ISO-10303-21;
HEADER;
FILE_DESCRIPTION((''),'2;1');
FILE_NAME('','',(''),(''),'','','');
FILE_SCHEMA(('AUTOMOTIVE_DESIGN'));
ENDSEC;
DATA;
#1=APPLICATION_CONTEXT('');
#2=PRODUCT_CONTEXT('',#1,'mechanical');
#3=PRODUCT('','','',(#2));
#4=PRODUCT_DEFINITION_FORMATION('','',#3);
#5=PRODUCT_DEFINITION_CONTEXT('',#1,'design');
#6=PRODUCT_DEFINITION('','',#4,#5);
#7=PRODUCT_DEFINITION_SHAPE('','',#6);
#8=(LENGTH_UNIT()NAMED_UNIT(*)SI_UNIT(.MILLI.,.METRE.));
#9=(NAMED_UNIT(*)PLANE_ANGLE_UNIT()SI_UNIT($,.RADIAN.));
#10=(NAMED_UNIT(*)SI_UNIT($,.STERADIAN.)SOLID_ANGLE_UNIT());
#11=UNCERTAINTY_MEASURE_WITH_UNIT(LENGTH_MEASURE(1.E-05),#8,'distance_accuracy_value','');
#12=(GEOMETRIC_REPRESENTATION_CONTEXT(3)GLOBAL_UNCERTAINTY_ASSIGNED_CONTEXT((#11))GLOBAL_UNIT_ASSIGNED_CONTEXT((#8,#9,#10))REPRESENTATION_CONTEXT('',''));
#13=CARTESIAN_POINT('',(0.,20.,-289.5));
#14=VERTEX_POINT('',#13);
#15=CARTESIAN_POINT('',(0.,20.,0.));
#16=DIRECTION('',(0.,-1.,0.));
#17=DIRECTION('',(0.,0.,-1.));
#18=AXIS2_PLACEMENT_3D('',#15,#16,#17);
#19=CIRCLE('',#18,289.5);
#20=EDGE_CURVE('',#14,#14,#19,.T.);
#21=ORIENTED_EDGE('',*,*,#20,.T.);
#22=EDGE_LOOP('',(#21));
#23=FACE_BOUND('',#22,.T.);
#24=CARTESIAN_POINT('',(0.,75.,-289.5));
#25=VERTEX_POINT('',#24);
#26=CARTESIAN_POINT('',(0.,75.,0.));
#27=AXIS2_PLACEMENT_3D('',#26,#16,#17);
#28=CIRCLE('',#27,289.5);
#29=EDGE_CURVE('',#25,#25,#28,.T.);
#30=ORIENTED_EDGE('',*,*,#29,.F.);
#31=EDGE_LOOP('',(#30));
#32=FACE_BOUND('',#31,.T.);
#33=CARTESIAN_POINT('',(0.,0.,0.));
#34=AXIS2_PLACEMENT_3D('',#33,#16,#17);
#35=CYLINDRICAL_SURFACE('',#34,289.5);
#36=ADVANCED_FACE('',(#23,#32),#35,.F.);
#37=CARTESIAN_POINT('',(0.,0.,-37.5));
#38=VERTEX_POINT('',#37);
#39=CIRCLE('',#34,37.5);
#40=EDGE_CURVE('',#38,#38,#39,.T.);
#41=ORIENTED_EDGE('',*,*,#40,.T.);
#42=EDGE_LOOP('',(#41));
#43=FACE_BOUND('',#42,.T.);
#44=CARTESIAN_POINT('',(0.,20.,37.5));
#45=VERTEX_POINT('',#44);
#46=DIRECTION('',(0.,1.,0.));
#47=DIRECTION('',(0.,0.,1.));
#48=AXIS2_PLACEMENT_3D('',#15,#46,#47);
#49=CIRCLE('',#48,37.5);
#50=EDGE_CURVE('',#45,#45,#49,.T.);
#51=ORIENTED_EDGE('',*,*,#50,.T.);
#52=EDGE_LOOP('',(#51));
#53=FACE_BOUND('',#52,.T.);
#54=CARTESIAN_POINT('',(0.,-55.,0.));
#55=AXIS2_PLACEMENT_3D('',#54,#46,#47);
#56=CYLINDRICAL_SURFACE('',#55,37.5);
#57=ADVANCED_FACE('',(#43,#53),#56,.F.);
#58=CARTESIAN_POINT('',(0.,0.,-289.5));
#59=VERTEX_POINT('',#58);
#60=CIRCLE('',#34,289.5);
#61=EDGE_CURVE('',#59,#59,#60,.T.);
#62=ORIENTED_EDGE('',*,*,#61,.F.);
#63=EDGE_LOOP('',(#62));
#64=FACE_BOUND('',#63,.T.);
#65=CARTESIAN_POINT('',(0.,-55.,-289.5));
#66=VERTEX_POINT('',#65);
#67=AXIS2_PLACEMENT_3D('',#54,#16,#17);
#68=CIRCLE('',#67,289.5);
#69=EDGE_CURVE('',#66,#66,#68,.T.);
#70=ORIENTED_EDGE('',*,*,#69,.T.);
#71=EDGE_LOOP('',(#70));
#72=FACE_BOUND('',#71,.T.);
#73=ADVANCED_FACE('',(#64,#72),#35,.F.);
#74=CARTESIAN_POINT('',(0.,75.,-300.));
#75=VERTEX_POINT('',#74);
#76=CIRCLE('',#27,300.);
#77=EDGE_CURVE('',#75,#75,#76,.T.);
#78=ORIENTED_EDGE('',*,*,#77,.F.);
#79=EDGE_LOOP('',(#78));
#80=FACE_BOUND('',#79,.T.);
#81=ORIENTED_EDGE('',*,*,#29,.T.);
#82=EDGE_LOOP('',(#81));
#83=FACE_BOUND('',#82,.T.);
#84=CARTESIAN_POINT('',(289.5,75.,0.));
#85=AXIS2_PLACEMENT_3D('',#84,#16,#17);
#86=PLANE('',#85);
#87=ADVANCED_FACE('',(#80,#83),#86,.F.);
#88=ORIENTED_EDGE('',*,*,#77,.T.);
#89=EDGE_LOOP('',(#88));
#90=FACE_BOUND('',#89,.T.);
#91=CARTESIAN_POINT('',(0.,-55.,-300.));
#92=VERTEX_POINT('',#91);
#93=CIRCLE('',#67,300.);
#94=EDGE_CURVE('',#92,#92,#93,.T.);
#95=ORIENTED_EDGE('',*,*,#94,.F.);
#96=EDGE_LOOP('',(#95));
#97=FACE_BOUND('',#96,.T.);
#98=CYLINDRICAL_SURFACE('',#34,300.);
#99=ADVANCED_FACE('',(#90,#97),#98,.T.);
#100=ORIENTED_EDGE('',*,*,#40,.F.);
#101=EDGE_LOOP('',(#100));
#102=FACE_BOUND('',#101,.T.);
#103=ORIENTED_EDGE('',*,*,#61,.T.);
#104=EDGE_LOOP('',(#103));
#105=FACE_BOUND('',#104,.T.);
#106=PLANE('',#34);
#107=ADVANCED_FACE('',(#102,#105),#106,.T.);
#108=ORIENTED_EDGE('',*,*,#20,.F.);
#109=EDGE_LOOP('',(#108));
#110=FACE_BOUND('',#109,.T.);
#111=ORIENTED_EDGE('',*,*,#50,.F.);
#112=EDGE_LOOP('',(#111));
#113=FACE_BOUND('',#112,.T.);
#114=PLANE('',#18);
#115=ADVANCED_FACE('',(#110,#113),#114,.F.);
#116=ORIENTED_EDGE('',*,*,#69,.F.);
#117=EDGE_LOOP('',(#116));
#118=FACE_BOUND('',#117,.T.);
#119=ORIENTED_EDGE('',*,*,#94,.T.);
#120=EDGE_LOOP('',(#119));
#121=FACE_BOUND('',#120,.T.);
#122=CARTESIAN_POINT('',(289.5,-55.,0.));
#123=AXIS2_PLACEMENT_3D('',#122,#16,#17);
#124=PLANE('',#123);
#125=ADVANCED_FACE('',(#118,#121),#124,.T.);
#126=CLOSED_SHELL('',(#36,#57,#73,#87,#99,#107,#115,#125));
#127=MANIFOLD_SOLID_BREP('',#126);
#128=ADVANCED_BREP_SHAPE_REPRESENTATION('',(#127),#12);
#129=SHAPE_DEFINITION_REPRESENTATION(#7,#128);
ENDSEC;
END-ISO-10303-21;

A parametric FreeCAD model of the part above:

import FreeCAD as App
import Part
import Sketcher

V = App.Vector


def add_polygon(sketch, points):
    """Adds a closed chain of lines whose ends are joined by coincident constraints."""
    first, n = sketch.GeometryCount, len(points)
    for a, b in zip(points, points[1:] + points[:1]):
        sketch.addGeometry(Part.LineSegment(App.Vector(*a, 0), App.Vector(*b, 0)), False)
    for i in range(n):
        sketch.addConstraint(Sketcher.Constraint("Coincident", first + i, 2, first + (i + 1) % n, 1))

doc = App.newDocument("Part")
body = doc.addObject("PartDesign::Body", "Body")

# Sketch on XY plane
sketch1 = body.newObject("Sketcher::SketchObject", "Sketch")
sketch1.AttachmentSupport = (doc.getObject("XY_Plane"), [""])
sketch1.MapMode = "FlatFace"
add_polygon(sketch1, [(290, 75), (290, 20), (0, 20), (0, 0), (290, 0), (290, -55), (300, -55), (300, 75)])  # lines 0-7
sketch1.addConstraint([
    Sketcher.Constraint("Vertical", 0),
    Sketcher.Constraint("Horizontal", 1),
    Sketcher.Constraint("Vertical", 2),
    Sketcher.Constraint("Horizontal", 3),
    Sketcher.Constraint("Vertical", 4),
    Sketcher.Constraint("Horizontal", 5),
    Sketcher.Constraint("Vertical", 6),
    Sketcher.Constraint("Horizontal", 7),
    Sketcher.Constraint("Coincident", 2, 2, -1, 1),
    Sketcher.Constraint("Vertical", 0, 2, 3, 2),
    Sketcher.Constraint("Equal", 0, 4),
    Sketcher.Constraint("DistanceY", 0, 2, 0, 1, 55.0),
    Sketcher.Constraint("DistanceY", 2, 2, 2, 1, 20.0),
    Sketcher.Constraint("DistanceX", 1, 2, 1, 1, 289.5),
    Sketcher.Constraint("DistanceX", 5, 1, 5, 2, 10.5),
])
revolution = body.newObject("PartDesign::Revolution", "Revolution")
revolution.Profile = sketch1
revolution.ReferenceAxis = (sketch1, ["V_Axis"])
revolution.Angle = 360

# Sketch on XZ plane
sketch2 = body.newObject("Sketcher::SketchObject", "Sketch001")
sketch2.AttachmentSupport = (doc.getObject("XZ_Plane"), [""])
sketch2.MapMode = "FlatFace"
sketch2.AttachmentOffset = App.Placement(V(0, 0, -20), App.Rotation())
sketch2.addGeometry(Part.Circle(V(0, 0, 0), V(0, 0, 1), 38), False)
sketch2.addConstraint([
    Sketcher.Constraint("Coincident", 0, 3, -1, 1),
    Sketcher.Constraint("Diameter", 0, 75.0),
])
pocket1 = body.newObject("PartDesign::Pocket", "Pocket")
pocket1.Profile = sketch2
pocket1.Type = "ThroughAll"
pocket1.Reversed = True

doc.recompute()
